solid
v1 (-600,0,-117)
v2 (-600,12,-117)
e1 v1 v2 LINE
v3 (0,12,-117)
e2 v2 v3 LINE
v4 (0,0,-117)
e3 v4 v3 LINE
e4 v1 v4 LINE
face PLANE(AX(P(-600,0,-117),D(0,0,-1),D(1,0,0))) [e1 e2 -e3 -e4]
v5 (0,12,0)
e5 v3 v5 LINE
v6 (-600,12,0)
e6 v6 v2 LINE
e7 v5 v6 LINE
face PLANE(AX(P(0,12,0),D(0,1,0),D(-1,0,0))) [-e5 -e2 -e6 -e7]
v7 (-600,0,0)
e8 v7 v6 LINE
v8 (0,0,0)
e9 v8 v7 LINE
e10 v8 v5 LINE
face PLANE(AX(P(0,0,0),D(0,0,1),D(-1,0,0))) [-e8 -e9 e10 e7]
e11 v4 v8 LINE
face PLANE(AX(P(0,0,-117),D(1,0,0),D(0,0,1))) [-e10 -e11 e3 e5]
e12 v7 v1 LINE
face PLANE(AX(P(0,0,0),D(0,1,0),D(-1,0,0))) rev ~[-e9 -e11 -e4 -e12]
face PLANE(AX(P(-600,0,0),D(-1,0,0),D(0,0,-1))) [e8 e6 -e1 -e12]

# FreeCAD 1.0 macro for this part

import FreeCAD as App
import Part
import Sketcher

doc = App.newDocument("Part")
body = doc.addObject("PartDesign::Body", "Body")

# Sketch on XZ plane
sketch1 = body.newObject("Sketcher::SketchObject", "Sketch")
sketch1.AttachmentSupport = (doc.getObject("XZ_Plane"), [""])
sketch1.MapMode = "FlatFace"
sketch1.addGeometry([
    Part.LineSegment(App.Vector(-600, 0, 0), App.Vector(0, 0, 0)),
    Part.LineSegment(App.Vector(0, 0, 0), App.Vector(0, -117, 0)),
    Part.LineSegment(App.Vector(0, -117, 0), App.Vector(-600, -117, 0)),
    Part.LineSegment(App.Vector(-600, -117, 0), App.Vector(-600, 0, 0)),
], False)
sketch1.addConstraint([
    Sketcher.Constraint("Coincident", 0, 2, 1, 1),
    Sketcher.Constraint("Coincident", 1, 2, 2, 1),
    Sketcher.Constraint("Coincident", 2, 2, 3, 1),
    Sketcher.Constraint("Coincident", 3, 2, 0, 1),
    Sketcher.Constraint("Horizontal", 0),
    Sketcher.Constraint("Vertical", 1),
    Sketcher.Constraint("Horizontal", 2),
    Sketcher.Constraint("Vertical", 3),
    Sketcher.Constraint("Coincident", 0, 2, -1, 1),
    Sketcher.Constraint("DistanceX", 0, 1, 0, 2, 600.0),
    Sketcher.Constraint("DistanceY", 1, 2, 1, 1, 117.0),
])
pad1 = body.newObject("PartDesign::Pad", "Pad")
pad1.Profile = sketch1
pad1.Length = 12
pad1.Reversed = True

doc.recompute()
